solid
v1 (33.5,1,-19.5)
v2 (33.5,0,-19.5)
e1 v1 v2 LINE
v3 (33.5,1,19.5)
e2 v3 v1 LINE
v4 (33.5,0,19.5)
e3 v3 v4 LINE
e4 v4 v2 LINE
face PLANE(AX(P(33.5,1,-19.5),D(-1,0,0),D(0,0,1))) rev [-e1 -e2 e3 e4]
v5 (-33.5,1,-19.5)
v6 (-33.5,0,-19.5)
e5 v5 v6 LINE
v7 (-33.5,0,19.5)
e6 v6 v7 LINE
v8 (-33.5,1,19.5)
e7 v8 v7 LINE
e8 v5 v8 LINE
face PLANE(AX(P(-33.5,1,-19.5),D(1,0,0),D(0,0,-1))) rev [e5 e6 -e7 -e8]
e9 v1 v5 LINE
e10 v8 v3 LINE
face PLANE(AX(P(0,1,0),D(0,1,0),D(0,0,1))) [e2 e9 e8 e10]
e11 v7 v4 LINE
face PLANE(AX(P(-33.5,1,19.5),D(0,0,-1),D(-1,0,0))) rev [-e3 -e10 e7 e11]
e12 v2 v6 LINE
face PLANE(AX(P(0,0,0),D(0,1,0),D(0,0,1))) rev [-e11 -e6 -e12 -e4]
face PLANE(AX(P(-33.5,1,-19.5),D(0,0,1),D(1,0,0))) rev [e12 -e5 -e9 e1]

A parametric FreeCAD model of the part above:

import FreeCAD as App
import Part
import Sketcher

doc = App.newDocument("Part")
params = doc.addObject("Spreadsheet::Sheet", "Params")
for row, (alias, value) in enumerate([
    ("sketch1_width", "67 mm"),
    ("sketch1_height", "39 mm"),
    ("pad1_length", "1 mm"),
], start=1):
    params.set(f"A{row}", alias)
    params.set(f"B{row}", "=" + value)
    params.setAlias(f"B{row}", alias)

body = doc.addObject("PartDesign::Body", "Body")

# Sketch on XZ plane
sketch1 = doc.addObject("Sketcher::SketchObject", "Sketch")
body.addObject(sketch1)
sketch1.AttachmentSupport = (doc.XZ_Plane, [""])
sketch1.MapMode = "FlatFace"
sketch1.addGeometry([
    Part.LineSegment(App.Vector(-34, -20, 0), App.Vector(-34, 20, 0)),
    Part.LineSegment(App.Vector(-34, 20, 0), App.Vector(34, 20, 0)),
    Part.LineSegment(App.Vector(34, 20, 0), App.Vector(34, -20, 0)),
    Part.LineSegment(App.Vector(34, -20, 0), App.Vector(-34, -20, 0)),
], False)
sketch1.addConstraint([
    Sketcher.Constraint("Coincident", 0, 2, 1, 1),
    Sketcher.Constraint("Coincident", 1, 2, 2, 1),
    Sketcher.Constraint("Coincident", 2, 2, 3, 1),
    Sketcher.Constraint("Coincident", 3, 2, 0, 1),
    Sketcher.Constraint("Vertical", 0),
    Sketcher.Constraint("Horizontal", 1),
    Sketcher.Constraint("Vertical", 2),
    Sketcher.Constraint("Horizontal", 3),
    Sketcher.Constraint("Symmetric", 0, 2, 2, 2, -1, 1),
    Sketcher.Constraint("DistanceX", 1, 1, 1, 2, 67.0),
    Sketcher.Constraint("DistanceY", 0, 1, 0, 2, 39.0),
])
sketch1.setExpression("Constraints[9]", "Params.sketch1_width")
sketch1.setExpression("Constraints[10]", "Params.sketch1_height")
pad1 = doc.addObject("PartDesign::Pad", "Pad")
body.addObject(pad1)
pad1.Profile = sketch1
pad1.setExpression("Length", "Params.pad1_length")
pad1.Reversed = True

doc.recompute()
